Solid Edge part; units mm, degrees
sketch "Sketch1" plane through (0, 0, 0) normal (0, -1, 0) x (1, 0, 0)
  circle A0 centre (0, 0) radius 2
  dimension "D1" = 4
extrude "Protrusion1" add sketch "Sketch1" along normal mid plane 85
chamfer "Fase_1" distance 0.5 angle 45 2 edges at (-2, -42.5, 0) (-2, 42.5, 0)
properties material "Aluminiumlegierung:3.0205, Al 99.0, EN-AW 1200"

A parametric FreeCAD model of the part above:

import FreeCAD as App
import Part
import Sketcher

V = App.Vector
Q = App.Units.Quantity


def edges_at(feature, points):
    """Names of the edges that pass closest to the given points."""
    edges = feature.Shape.Edges
    near = lambda p: min(range(len(edges)), key=lambda i: edges[i].distToShape(Part.Vertex(*p))[0])
    return sorted({f"Edge{near(p) + 1}" for p in points})

doc = App.newDocument("Part")
body = doc.addObject("PartDesign::Body", "Body")

sketch1 = body.newObject("Sketcher::SketchObject", "Sketch")
sketch1.AttachmentSupport = (doc.getObject("XZ_Plane"), [""])
sketch1.MapMode = "FlatFace"
sketch1.addGeometry(Part.Circle(V(0, 0, 0), V(0, 0, 1), 2), False)
sketch1.addConstraint([
    Sketcher.Constraint("Coincident", 0, 3, -1, 1),
    Sketcher.Constraint("Diameter", 0, Q("4 mm")),
])
pad1 = body.newObject("PartDesign::Pad", "Pad")
pad1.Profile = sketch1
pad1.Length = 85
pad1.Midplane = True
doc.recompute()

chamfer = body.newObject("PartDesign::Chamfer", "Chamfer")
chamfer.Base = (pad1, edges_at(pad1, [(-2, -42.5, 0), (-2, 42.5, 0)]))
chamfer.Size = 0.5

doc.recompute()
